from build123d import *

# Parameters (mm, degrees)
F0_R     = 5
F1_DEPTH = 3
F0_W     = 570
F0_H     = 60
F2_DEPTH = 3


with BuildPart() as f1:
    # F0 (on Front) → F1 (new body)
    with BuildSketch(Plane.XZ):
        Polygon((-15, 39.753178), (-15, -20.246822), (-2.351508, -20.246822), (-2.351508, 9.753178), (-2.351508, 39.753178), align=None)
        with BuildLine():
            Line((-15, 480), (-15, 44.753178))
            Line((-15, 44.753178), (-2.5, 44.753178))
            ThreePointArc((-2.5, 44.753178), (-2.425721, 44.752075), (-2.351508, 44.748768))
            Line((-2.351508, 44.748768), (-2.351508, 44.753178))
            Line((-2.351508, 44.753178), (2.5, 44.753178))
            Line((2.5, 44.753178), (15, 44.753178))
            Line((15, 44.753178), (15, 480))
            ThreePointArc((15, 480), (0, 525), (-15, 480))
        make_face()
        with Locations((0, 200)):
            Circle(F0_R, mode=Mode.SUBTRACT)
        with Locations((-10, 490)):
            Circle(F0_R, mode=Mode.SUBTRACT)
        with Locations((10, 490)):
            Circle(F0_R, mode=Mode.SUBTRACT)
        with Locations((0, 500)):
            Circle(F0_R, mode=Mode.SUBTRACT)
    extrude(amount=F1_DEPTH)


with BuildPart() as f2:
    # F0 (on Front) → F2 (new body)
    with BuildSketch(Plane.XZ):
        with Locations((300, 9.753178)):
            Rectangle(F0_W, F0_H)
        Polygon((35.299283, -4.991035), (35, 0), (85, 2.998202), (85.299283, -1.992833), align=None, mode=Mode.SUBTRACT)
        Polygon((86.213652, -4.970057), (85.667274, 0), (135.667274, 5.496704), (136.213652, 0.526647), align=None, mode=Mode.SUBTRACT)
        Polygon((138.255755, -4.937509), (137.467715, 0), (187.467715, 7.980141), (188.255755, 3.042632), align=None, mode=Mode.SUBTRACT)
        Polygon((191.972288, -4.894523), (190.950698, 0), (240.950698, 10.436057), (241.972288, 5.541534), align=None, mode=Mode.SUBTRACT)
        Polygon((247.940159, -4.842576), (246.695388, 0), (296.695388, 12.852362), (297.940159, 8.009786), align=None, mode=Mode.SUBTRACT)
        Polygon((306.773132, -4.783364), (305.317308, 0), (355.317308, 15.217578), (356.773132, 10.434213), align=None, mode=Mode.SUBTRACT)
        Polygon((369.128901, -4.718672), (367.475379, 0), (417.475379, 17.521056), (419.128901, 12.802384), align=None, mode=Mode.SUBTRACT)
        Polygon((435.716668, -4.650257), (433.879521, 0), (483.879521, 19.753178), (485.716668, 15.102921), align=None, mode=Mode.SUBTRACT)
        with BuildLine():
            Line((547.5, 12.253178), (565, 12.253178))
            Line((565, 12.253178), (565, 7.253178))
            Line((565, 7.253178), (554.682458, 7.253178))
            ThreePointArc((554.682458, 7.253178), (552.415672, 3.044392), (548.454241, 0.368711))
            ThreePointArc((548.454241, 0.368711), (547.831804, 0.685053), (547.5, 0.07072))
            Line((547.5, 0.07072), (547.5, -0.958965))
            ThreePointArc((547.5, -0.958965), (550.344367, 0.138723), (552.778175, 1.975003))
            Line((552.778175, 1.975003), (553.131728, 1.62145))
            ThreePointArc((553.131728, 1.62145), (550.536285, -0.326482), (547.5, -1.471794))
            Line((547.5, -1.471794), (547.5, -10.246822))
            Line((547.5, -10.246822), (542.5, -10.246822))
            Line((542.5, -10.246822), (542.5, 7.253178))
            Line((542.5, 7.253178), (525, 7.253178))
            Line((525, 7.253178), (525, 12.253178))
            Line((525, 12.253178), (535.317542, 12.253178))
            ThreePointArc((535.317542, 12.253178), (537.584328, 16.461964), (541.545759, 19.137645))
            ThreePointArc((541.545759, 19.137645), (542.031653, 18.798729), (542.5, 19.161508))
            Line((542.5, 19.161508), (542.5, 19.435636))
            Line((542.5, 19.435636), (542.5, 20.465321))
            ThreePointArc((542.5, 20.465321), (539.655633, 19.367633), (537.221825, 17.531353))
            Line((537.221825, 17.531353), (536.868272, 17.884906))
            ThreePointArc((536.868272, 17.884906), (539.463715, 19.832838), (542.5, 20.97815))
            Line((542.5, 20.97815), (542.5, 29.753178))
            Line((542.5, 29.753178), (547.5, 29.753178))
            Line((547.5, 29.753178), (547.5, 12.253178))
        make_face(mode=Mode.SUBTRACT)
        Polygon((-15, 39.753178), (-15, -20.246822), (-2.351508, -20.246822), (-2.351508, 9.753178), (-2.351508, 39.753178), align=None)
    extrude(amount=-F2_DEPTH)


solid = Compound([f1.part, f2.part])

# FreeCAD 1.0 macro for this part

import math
import FreeCAD as App
import Part
import Sketcher
Q = App.Units.Quantity


def add_polygon(sketch, points):
    """Adds a closed chain of lines whose ends are joined by coincident constraints."""
    first, n = sketch.GeometryCount, len(points)
    for a, b in zip(points, points[1:] + points[:1]):
        sketch.addGeometry(Part.LineSegment(App.Vector(*a, 0), App.Vector(*b, 0)), False)
    for i in range(n):
        sketch.addConstraint(Sketcher.Constraint("Coincident", first + i, 2, first + (i + 1) % n, 1))

doc = App.newDocument("Part")
body = doc.addObject("PartDesign::Body", "Body")
body.AllowCompound = True

sketch1 = body.newObject("Sketcher::SketchObject", "Sketch")
sketch1.AttachmentSupport = (doc.getObject("XZ_Plane"), [""])
sketch1.MapMode = "FlatFace"
add_polygon(sketch1, [(-15, 39.7532), (-15, -20.2468), (-2.3515, -20.2468), (-2.3515, 39.7532)])
sketch1.addGeometry(Part.LineSegment(App.Vector(-15, 480, 0), App.Vector(-15, 44.7532, 0)), False)
sketch1.addGeometry(Part.LineSegment(App.Vector(-15, 44.7532, 0), App.Vector(-2.5, 44.7532, 0)), False)
sketch1.addGeometry(Part.ArcOfCircle(Part.Circle(App.Vector(-2.5, 42.2504, 0), App.Vector(0, 0, 1), 2.5028), math.radians(86.6), math.radians(90)), False)
sketch1.addGeometry(Part.LineSegment(App.Vector(-2.3515, 44.7488, 0), App.Vector(-2.3515, 44.7532, 0)), False)
sketch1.addGeometry(Part.LineSegment(App.Vector(-2.3515, 44.7532, 0), App.Vector(15, 44.7532, 0)), False)
sketch1.addGeometry(Part.LineSegment(App.Vector(15, 44.7532, 0), App.Vector(15, 480, 0)), False)
sketch1.addGeometry(Part.ArcOfCircle(Part.Circle(App.Vector(0, 500, 0), App.Vector(0, 0, 1), 25), math.radians(-53), math.radians(233)), False)
sketch1.addGeometry(Part.Circle(App.Vector(0, 200, 0), App.Vector(0, 0, 1), 5), False)
sketch1.addGeometry(Part.Circle(App.Vector(-10, 490, 0), App.Vector(0, 0, 1), 5), False)
sketch1.addGeometry(Part.Circle(App.Vector(0, 500, 0), App.Vector(0, 0, 1), 5), False)
sketch1.addGeometry(Part.Circle(App.Vector(10, 490, 0), App.Vector(0, 0, 1), 5), False)
sketch1.addConstraint(Sketcher.Constraint("Coincident", 4, 2, 5, 1))
sketch1.addConstraint(Sketcher.Constraint("Coincident", 5, 2, 6, 2))
sketch1.addConstraint(Sketcher.Constraint("Coincident", 6, 1, 7, 1))
sketch1.addConstraint(Sketcher.Constraint("Coincident", 7, 2, 8, 1))
sketch1.addConstraint(Sketcher.Constraint("Coincident", 8, 2, 9, 1))
sketch1.addConstraint(Sketcher.Constraint("Coincident", 9, 2, 10, 1))
sketch1.addConstraint(Sketcher.Constraint("Coincident", 10, 2, 4, 1))
sketch1.addConstraint(Sketcher.Constraint("Vertical", 0))
sketch1.addConstraint(Sketcher.Constraint("Horizontal", 1))
sketch1.addConstraint(Sketcher.Constraint("Vertical", 2))
sketch1.addConstraint(Sketcher.Constraint("Horizontal", 3))
sketch1.addConstraint(Sketcher.Constraint("Vertical", 4))
sketch1.addConstraint(Sketcher.Constraint("Horizontal", 5))
sketch1.addConstraint(Sketcher.Constraint("Vertical", 7))
sketch1.addConstraint(Sketcher.Constraint("Horizontal", 8))
sketch1.addConstraint(Sketcher.Constraint("Vertical", 9))
sketch1.addConstraint(Sketcher.Constraint("Coincident", 13, 3, 10, 3))
sketch1.addConstraint(Sketcher.Constraint("Equal", 11, 12))
sketch1.addConstraint(Sketcher.Constraint("Equal", 12, 13))
sketch1.addConstraint(Sketcher.Constraint("Equal", 13, 14))
sketch1.addConstraint(Sketcher.Constraint("Symmetric", 12, 3, 14, 3, -2))
sketch1.addConstraint(Sketcher.Constraint("Symmetric", 4, 2, 8, 2, -2))
sketch1.addConstraint(Sketcher.Constraint("PointOnObject", 10, 3, -2))
sketch1.addConstraint(Sketcher.Constraint("PointOnObject", 11, 3, -2))
sketch1.addConstraint(Sketcher.Constraint("Vertical", 3, 2, 4, 2))
sketch1.addConstraint(Sketcher.Constraint("Vertical", 2, 2, 6, 1))
sketch1.addConstraint(Sketcher.Constraint("Diameter", 11, Q("10 mm")))
sketch1.addConstraint(Sketcher.Constraint("Radius", 10, Q("25 mm")))
sketch1.addConstraint(Sketcher.Constraint("DistanceY", 0, 2, 0, 1, Q("60 mm")))
sketch1.addConstraint(Sketcher.Constraint("DistanceX", 5, 1, 5, 2, Q("12.5 mm")))
sketch1.addConstraint(Sketcher.Constraint("DistanceY", -1, 1, 10, 3, Q("500 mm")))
sketch1.addConstraint(Sketcher.Constraint("DistanceY", -1, 1, 11, 3, Q("200 mm")))
sketch1.addConstraint(Sketcher.Constraint("DistanceX", 12, 3, -1, 1, Q("10 mm")))
sketch1.addConstraint(Sketcher.Constraint("DistanceY", -1, 1, 12, 3, Q("490 mm")))
sketch1.addConstraint(Sketcher.Constraint("DistanceX", 0, 2, -1, 1, Q("15 mm")))
sketch1.addConstraint(Sketcher.Constraint("DistanceY", 3, 2, 4, 2, Q("5 mm")))
sketch1.addConstraint(Sketcher.Constraint("Radius", 6, Q("2.502756 mm")))
sketch1.addConstraint(Sketcher.Constraint("DistanceY", 4, 2, 4, 1, Q("435.246822 mm")))
sketch1.addConstraint(Sketcher.Constraint("DistanceY", 7, 1, 7, 2, Q("0.00441 mm")))
sketch1.addConstraint(Sketcher.Constraint("DistanceX", 1, 1, 1, 2, Q("12.648492 mm")))
pad1 = body.newObject("PartDesign::Pad", "Pad")
pad1.Profile = sketch1
pad1.Length = 3
body2 = doc.addObject("PartDesign::Body", "Body001")
body2.AllowCompound = True

sketch2 = body2.newObject("Sketcher::SketchObject", "Sketch001")
sketch2.AttachmentSupport = (doc.getObject("XZ_Plane001"), [""])
sketch2.MapMode = "FlatFace"
add_polygon(sketch2, [(15, 39.75), (15, -20.25), (585, -20.25), (585, 39.75)])
add_polygon(sketch2, [(85.3, -1.99), (35.3, -4.99), (35, 0), (85, 3)])
add_polygon(sketch2, [(136.21, 0.53), (86.21, -4.97), (85.67, 0), (135.67, 5.5)])
add_polygon(sketch2, [(188.26, 3.04), (138.26, -4.94), (137.47, 0), (187.47, 7.98)])
add_polygon(sketch2, [(241.97, 5.54), (191.97, -4.89), (190.95, 0), (240.95, 10.44)])
add_polygon(sketch2, [(297.94, 8.01), (247.94, -4.84), (246.7, 0), (296.7, 12.85)])
add_polygon(sketch2, [(356.77, 10.43), (306.77, -4.78), (305.32, 0), (355.32, 15.22)])
add_polygon(sketch2, [(419.13, 12.8), (369.13, -4.72), (367.48, 0), (417.48, 17.52)])
add_polygon(sketch2, [(485.72, 15.1), (435.72, -4.65), (433.88, 0), (483.88, 19.75)])
sketch2.addGeometry(Part.LineSegment(App.Vector(547.5, 29.75, 0), App.Vector(547.5, 12.25, 0)), False)
sketch2.addGeometry(Part.LineSegment(App.Vector(547.5, 12.25, 0), App.Vector(565, 12.25, 0)), False)
sketch2.addGeometry(Part.LineSegment(App.Vector(565, 12.25, 0), App.Vector(565, 7.25, 0)), False)
sketch2.addGeometry(Part.LineSegment(App.Vector(565, 7.25, 0), App.Vector(554.68, 7.25, 0)), False)
sketch2.addGeometry(Part.ArcOfCircle(Part.Circle(App.Vector(545, 9.75, 0), App.Vector(0, 0, 1), 10), math.radians(-70), math.radians(-14)), False)
sketch2.addGeometry(Part.ArcOfCircle(Part.Circle(App.Vector(547.98, 0.21, 0), App.Vector(0, 0, 1), 0.5), math.radians(19), math.radians(196)), False)
sketch2.addGeometry(Part.LineSegment(App.Vector(547.5, 0.07, 0), App.Vector(547.5, -0.96, 0)), False)
sketch2.addGeometry(Part.ArcOfCircle(Part.Circle(App.Vector(545, 9.75, 0), App.Vector(0, 0, 1), 11), math.radians(-77), math.radians(-45)), False)
sketch2.addGeometry(Part.LineSegment(App.Vector(552.78, 1.98, 0), App.Vector(553.13, 1.62, 0)), False)
sketch2.addGeometry(Part.ArcOfCircle(Part.Circle(App.Vector(545, 9.75, 0), App.Vector(0, 0, 1), 11.5), math.radians(-77), math.radians(-45)), False)
sketch2.addGeometry(Part.LineSegment(App.Vector(547.5, -1.47, 0), App.Vector(547.5, -10.25, 0)), False)
sketch2.addGeometry(Part.LineSegment(App.Vector(547.5, -10.25, 0), App.Vector(542.5, -10.25, 0)), False)
sketch2.addGeometry(Part.LineSegment(App.Vector(542.5, -10.25, 0), App.Vector(542.5, 7.25, 0)), False)
sketch2.addGeometry(Part.LineSegment(App.Vector(542.5, 7.25, 0), App.Vector(525, 7.25, 0)), False)
sketch2.addGeometry(Part.LineSegment(App.Vector(525, 7.25, 0), App.Vector(525, 12.25, 0)), False)
sketch2.addGeometry(Part.LineSegment(App.Vector(525, 12.25, 0), App.Vector(535.32, 12.25, 0)), False)
sketch2.addGeometry(Part.ArcOfCircle(Part.Circle(App.Vector(545, 9.75, 0), App.Vector(0, 0, 1), 10), math.radians(110), math.radians(166)), False)
sketch2.addGeometry(Part.ArcOfCircle(Part.Circle(App.Vector(542.02, 19.3, 0), App.Vector(0, 0, 1), 0.5), math.radians(-161), math.radians(-16)), False)
sketch2.addGeometry(Part.LineSegment(App.Vector(542.5, 19.16, 0), App.Vector(542.5, 20.47, 0)), False)
sketch2.addGeometry(Part.ArcOfCircle(Part.Circle(App.Vector(545, 9.75, 0), App.Vector(0, 0, 1), 11), math.radians(103), math.radians(135)), False)
sketch2.addGeometry(Part.LineSegment(App.Vector(537.22, 17.53, 0), App.Vector(536.87, 17.88, 0)), False)
sketch2.addGeometry(Part.ArcOfCircle(Part.Circle(App.Vector(545, 9.75, 0), App.Vector(0, 0, 1), 11.5), math.radians(103), math.radians(135)), False)
sketch2.addGeometry(Part.LineSegment(App.Vector(542.5, 20.98, 0), App.Vector(542.5, 29.75, 0)), False)
sketch2.addGeometry(Part.LineSegment(App.Vector(542.5, 29.75, 0), App.Vector(547.5, 29.75, 0)), False)
add_polygon(sketch2, [(-15, 39.75), (-15, -20.25), (-2.35, -20.25), (-2.35, 39.75)])
sketch2.addConstraint(Sketcher.Constraint("Coincident", 36, 2, 37, 1))
sketch2.addConstraint(Sketcher.Constraint("Coincident", 37, 2, 38, 1))
sketch2.addConstraint(Sketcher.Constraint("Coincident", 38, 2, 39, 1))
sketch2.addConstraint(Sketcher.Constraint("Coincident", 39, 2, 40, 2))
sketch2.addConstraint(Sketcher.Constraint("Coincident", 40, 1, 41, 1))
sketch2.addConstraint(Sketcher.Constraint("Coincident", 41, 2, 42, 1))
sketch2.addConstraint(Sketcher.Constraint("Coincident", 42, 2, 43, 1))
sketch2.addConstraint(Sketcher.Constraint("Coincident", 43, 2, 44, 1))
sketch2.addConstraint(Sketcher.Constraint("Coincident", 44, 2, 45, 2))
sketch2.addConstraint(Sketcher.Constraint("Coincident", 45, 1, 46, 1))
sketch2.addConstraint(Sketcher.Constraint("Coincident", 46, 2, 47, 1))
sketch2.addConstraint(Sketcher.Constraint("Coincident", 47, 2, 48, 1))
sketch2.addConstraint(Sketcher.Constraint("Coincident", 48, 2, 49, 1))
sketch2.addConstraint(Sketcher.Constraint("Coincident", 49, 2, 50, 1))
sketch2.addConstraint(Sketcher.Constraint("Coincident", 50, 2, 51, 1))
sketch2.addConstraint(Sketcher.Constraint("Coincident", 51, 2, 52, 2))
sketch2.addConstraint(Sketcher.Constraint("Coincident", 52, 1, 53, 1))
sketch2.addConstraint(Sketcher.Constraint("Coincident", 53, 2, 54, 1))
sketch2.addConstraint(Sketcher.Constraint("Coincident", 54, 2, 55, 1))
sketch2.addConstraint(Sketcher.Constraint("Coincident", 55, 2, 56, 1))
sketch2.addConstraint(Sketcher.Constraint("Coincident", 56, 2, 57, 2))
sketch2.addConstraint(Sketcher.Constraint("Coincident", 57, 1, 58, 1))
sketch2.addConstraint(Sketcher.Constraint("Coincident", 58, 2, 59, 1))
sketch2.addConstraint(Sketcher.Constraint("Coincident", 59, 2, 36, 1))
sketch2.addConstraint(Sketcher.Constraint("Vertical", 0))
sketch2.addConstraint(Sketcher.Constraint("Horizontal", 1))
sketch2.addConstraint(Sketcher.Constraint("Vertical", 2))
sketch2.addConstraint(Sketcher.Constraint("Horizontal", 3))
sketch2.addConstraint(Sketcher.Constraint("Vertical", 36))
sketch2.addConstraint(Sketcher.Constraint("Horizontal", 37))
sketch2.addConstraint(Sketcher.Constraint("Vertical", 38))
sketch2.addConstraint(Sketcher.Constraint("Horizontal", 39))
sketch2.addConstraint(Sketcher.Constraint("Vertical", 42))
sketch2.addConstraint(Sketcher.Constraint("Vertical", 46))
sketch2.addConstraint(Sketcher.Constraint("Horizontal", 47))
sketch2.addConstraint(Sketcher.Constraint("Vertical", 48))
sketch2.addConstraint(Sketcher.Constraint("Horizontal", 49))
sketch2.addConstraint(Sketcher.Constraint("Vertical", 50))
sketch2.addConstraint(Sketcher.Constraint("Horizontal", 51))
sketch2.addConstraint(Sketcher.Constraint("Vertical", 54))
sketch2.addConstraint(Sketcher.Constraint("Vertical", 58))
sketch2.addConstraint(Sketcher.Constraint("Horizontal", 59))
sketch2.addConstraint(Sketcher.Constraint("Vertical", 60))
sketch2.addConstraint(Sketcher.Constraint("Horizontal", 61))
sketch2.addConstraint(Sketcher.Constraint("Vertical", 62))
sketch2.addConstraint(Sketcher.Constraint("Horizontal", 63))
sketch2.addConstraint(Sketcher.Constraint("Coincident", 43, 3, 40, 3))
sketch2.addConstraint(Sketcher.Constraint("Coincident", 45, 3, 40, 3))
sketch2.addConstraint(Sketcher.Constraint("Coincident", 52, 3, 40, 3))
sketch2.addConstraint(Sketcher.Constraint("Coincident", 55, 3, 40, 3))
sketch2.addConstraint(Sketcher.Constraint("Coincident", 57, 3, 40, 3))
sketch2.addConstraint(Sketcher.Constraint("Equal", 40, 52))
sketch2.addConstraint(Sketcher.Constraint("Equal", 41, 53))
sketch2.addConstraint(Sketcher.Constraint("Equal", 43, 55))
sketch2.addConstraint(Sketcher.Constraint("Equal", 45, 57))
sketch2.addConstraint(Sketcher.Constraint("Symmetric", 0, 2, 60, 2, -2))
sketch2.addConstraint(Sketcher.Constraint("PointOnObject", 5, 2, -1))
sketch2.addConstraint(Sketcher.Constraint("PointOnObject", 9, 2, -1))
sketch2.addConstraint(Sketcher.Constraint("PointOnObject", 13, 2, -1))
sketch2.addConstraint(Sketcher.Constraint("PointOnObject", 17, 2, -1))
sketch2.addConstraint(Sketcher.Constraint("PointOnObject", 21, 2, -1))
sketch2.addConstraint(Sketcher.Constraint("PointOnObject", 25, 2, -1))
sketch2.addConstraint(Sketcher.Constraint("PointOnObject", 29, 2, -1))
sketch2.addConstraint(Sketcher.Constraint("PointOnObject", 33, 2, -1))
sketch2.addConstraint(Sketcher.Constraint("Perpendicular", 4, 5))
sketch2.addConstraint(Sketcher.Constraint("Perpendicular", 5, 6))
sketch2.addConstraint(Sketcher.Constraint("Perpendicular", 6, 7))
sketch2.addConstraint(Sketcher.Constraint("Perpendicular", 8, 9))
sketch2.addConstraint(Sketcher.Constraint("Perpendicular", 9, 10))
sketch2.addConstraint(Sketcher.Constraint("Perpendicular", 10, 11))
sketch2.addConstraint(Sketcher.Constraint("Perpendicular", 12, 13))
sketch2.addConstraint(Sketcher.Constraint("Perpendicular", 13, 14))
sketch2.addConstraint(Sketcher.Constraint("Perpendicular", 14, 15))
sketch2.addConstraint(Sketcher.Constraint("Perpendicular", 16, 17))
sketch2.addConstraint(Sketcher.Constraint("Perpendicular", 17, 18))
sketch2.addConstraint(Sketcher.Constraint("Perpendicular", 18, 19))
sketch2.addConstraint(Sketcher.Constraint("Perpendicular", 20, 21))
sketch2.addConstraint(Sketcher.Constraint("Perpendicular", 21, 22))
sketch2.addConstraint(Sketcher.Constraint("Perpendicular", 22, 23))
sketch2.addConstraint(Sketcher.Constraint("Perpendicular", 24, 25))
sketch2.addConstraint(Sketcher.Constraint("Perpendicular", 25, 26))
sketch2.addConstraint(Sketcher.Constraint("Perpendicular", 26, 27))
sketch2.addConstraint(Sketcher.Constraint("Perpendicular", 28, 29))
sketch2.addConstraint(Sketcher.Constraint("Perpendicular", 29, 30))
sketch2.addConstraint(Sketcher.Constraint("Perpendicular", 30, 31))
sketch2.addConstraint(Sketcher.Constraint("Perpendicular", 32, 33))
sketch2.addConstraint(Sketcher.Constraint("Perpendicular", 33, 34))
sketch2.addConstraint(Sketcher.Constraint("Perpendicular", 34, 35))
sketch2.addConstraint(Sketcher.Constraint("Parallel", 44, 56))
sketch2.addConstraint(Sketcher.Constraint("Horizontal", 39, 2, 48, 2))
sketch2.addConstraint(Sketcher.Constraint("Horizontal", 37, 2, 50, 2))
sketch2.addConstraint(Sketcher.Constraint("Horizontal", 3, 2, 62, 2))
sketch2.addConstraint(Sketcher.Constraint("Vertical", 36, 2, 41, 2))
sketch2.addConstraint(Sketcher.Constraint("Vertical", 42, 2, 45, 1))
sketch2.addConstraint(Sketcher.Constraint("Vertical", 48, 2, 53, 2))
sketch2.addConstraint(Sketcher.Constraint("Vertical", 54, 2, 57, 1))
sketch2.addConstraint(Sketcher.Constraint("Equal", 37, 49))
sketch2.addConstraint(Sketcher.Constraint("Equal", 39, 51))
sketch2.addConstraint(Sketcher.Constraint("Equal", 49, 36))
sketch2.addConstraint(Sketcher.Constraint("Equal", 59, 38))
sketch2.addConstraint(Sketcher.Constraint("Equal", 36, 48))
sketch2.addConstraint(Sketcher.Constraint("Equal", 46, 58))
sketch2.addConstraint(Sketcher.Constraint("Equal", 7, 9))
sketch2.addConstraint(Sketcher.Constraint("Equal", 11, 13))
sketch2.addConstraint(Sketcher.Constraint("Equal", 15, 17))
sketch2.addConstraint(Sketcher.Constraint("Equal", 19, 21))
sketch2.addConstraint(Sketcher.Constraint("Equal", 23, 25))
sketch2.addConstraint(Sketcher.Constraint("Equal", 27, 29))
sketch2.addConstraint(Sketcher.Constraint("Equal", 31, 33))
sketch2.addConstraint(Sketcher.Constraint("Radius", 40, Q("9.999999 mm")))
sketch2.addConstraint(Sketcher.Constraint("Radius", 41, Q("0.5 mm")))
sketch2.addConstraint(Sketcher.Constraint("Radius", 45, Q("11.500001 mm")))
sketch2.addConstraint(Sketcher.Constraint("DistanceX", 1, 1, 1, 2, Q("570 mm")))
sketch2.addConstraint(Sketcher.Constraint("DistanceX", 47, 2, 47, 1, Q("5 mm")))
sketch2.addConstraint(Sketcher.Constraint("DistanceY", 0, 2, 0, 1, Q("60 mm")))
sketch2.addConstraint(Sketcher.Constraint("Angle", 44, Q("-45 deg")))
sketch2.addConstraint(Sketcher.Constraint("Distance", 5, Q("5 mm")))
sketch2.addConstraint(Sketcher.Constraint("DistanceX", 37, 1, 37, 2, Q("17.5 mm")))
sketch2.addConstraint(Sketcher.Constraint("DistanceX", -1, 1, 40, 3, Q("545.000001 mm")))
sketch2.addConstraint(Sketcher.Constraint("DistanceX", -1, 1, 0, 2, Q("15 mm")))
sketch2.addConstraint(Sketcher.Constraint("DistanceX", -1, 1, 5, 2, Q("35 mm")))
sketch2.addConstraint(Sketcher.Constraint("DistanceX", -1, 1, 6, 2, Q("85 mm")))
sketch2.addConstraint(Sketcher.Constraint("Distance", 44, Q("0.499999 mm")))
sketch2.addConstraint(Sketcher.Constraint("DistanceY", -1, 1, 6, 2, Q("2.998202 mm")))
sketch2.addConstraint(Sketcher.Constraint("DistanceX", -1, 1, 28, 2, Q("369.128901 mm")))
sketch2.addConstraint(Sketcher.Constraint("DistanceX", -1, 1, 31, 2, Q("419.128901 mm")))
sketch2.addConstraint(Sketcher.Constraint("Distance", 8, Q("50.30123 mm")))
sketch2.addConstraint(Sketcher.Constraint("Distance", 12, Q("50.632822 mm")))
sketch2.addConstraint(Sketcher.Constraint("Distance", 24, Q("52.264468 mm")))
sketch2.addConstraint(Sketcher.Constraint("Distance", 28, Q("52.98101 mm")))
sketch2.addConstraint(Sketcher.Constraint("Distance", 32, Q("53.760469 mm")))
sketch2.addConstraint(Sketcher.Constraint("DistanceX", 61, 1, 61, 2, Q("12.648492 mm")))
sketch2.addConstraint(Sketcher.Constraint("DistanceY", 42, 2, 42, 1, Q("1.029685 mm")))
sketch2.addConstraint(Sketcher.Constraint("DistanceY", 54, 1, 54, 2, Q("1.303813 mm")))
sketch2.addConstraint(Sketcher.Constraint("DistanceY", -1, 1, 45, 3, Q("9.753179 mm")))
sketch2.addConstraint(Sketcher.Constraint("DistanceX", -1, 1, 8, 2, Q("86.213652 mm")))
sketch2.addConstraint(Sketcher.Constraint("DistanceX", -1, 1, 11, 2, Q("136.213652 mm")))
sketch2.addConstraint(Sketcher.Constraint("DistanceY", 12, 2, -1, 1, Q("4.937509 mm")))
sketch2.addConstraint(Sketcher.Constraint("DistanceX", -1, 1, 16, 2, Q("191.972288 mm")))
sketch2.addConstraint(Sketcher.Constraint("DistanceX", -1, 1, 19, 2, Q("241.972288 mm")))
sketch2.addConstraint(Sketcher.Constraint("DistanceX", -1, 1, 20, 2, Q("247.940159 mm")))
sketch2.addConstraint(Sketcher.Constraint("DistanceX", -1, 1, 21, 2, Q("246.695388 mm")))
sketch2.addConstraint(Sketcher.Constraint("DistanceX", -1, 1, 22, 2, Q("296.695388 mm")))
sketch2.addConstraint(Sketcher.Constraint("DistanceX", -1, 1, 24, 2, Q("306.773132 mm")))
sketch2.addConstraint(Sketcher.Constraint("DistanceX", -1, 1, 25, 2, Q("305.317308 mm")))
sketch2.addConstraint(Sketcher.Constraint("DistanceX", -1, 1, 32, 2, Q("435.716668 mm")))
sketch2.addConstraint(Sketcher.Constraint("DistanceX", -1, 1, 33, 2, Q("433.879521 mm")))
sketch2.addConstraint(Sketcher.Constraint("DistanceX", -1, 1, 44, 2, Q("553.131728 mm")))
sketch2.addConstraint(Sketcher.Constraint("DistanceX", -1, 1, 52, 1, Q("541.545759 mm")))
sketch2.addConstraint(Sketcher.Constraint("DistanceX", -1, 1, 56, 2, Q("536.868272 mm")))
sketch2.addConstraint(Sketcher.Constraint("Distance", 16, Q("51.077503 mm")))
sketch2.addConstraint(Sketcher.Constraint("DistanceX", -1, 1, 41, 3, Q("547.980847 mm")))
sketch2.addConstraint(Sketcher.Constraint("DistanceY", 0, 2, -1, 1, Q("20.246822 mm")))
sketch2.addConstraint(Sketcher.Constraint("DistanceX", -1, 1, 12, 2, Q("138.255755 mm")))
pad2 = body2.newObject("PartDesign::Pad", "Pad001")
pad2.Profile = sketch2
pad2.Length = 3
pad2.Reversed = True

doc.recompute()
